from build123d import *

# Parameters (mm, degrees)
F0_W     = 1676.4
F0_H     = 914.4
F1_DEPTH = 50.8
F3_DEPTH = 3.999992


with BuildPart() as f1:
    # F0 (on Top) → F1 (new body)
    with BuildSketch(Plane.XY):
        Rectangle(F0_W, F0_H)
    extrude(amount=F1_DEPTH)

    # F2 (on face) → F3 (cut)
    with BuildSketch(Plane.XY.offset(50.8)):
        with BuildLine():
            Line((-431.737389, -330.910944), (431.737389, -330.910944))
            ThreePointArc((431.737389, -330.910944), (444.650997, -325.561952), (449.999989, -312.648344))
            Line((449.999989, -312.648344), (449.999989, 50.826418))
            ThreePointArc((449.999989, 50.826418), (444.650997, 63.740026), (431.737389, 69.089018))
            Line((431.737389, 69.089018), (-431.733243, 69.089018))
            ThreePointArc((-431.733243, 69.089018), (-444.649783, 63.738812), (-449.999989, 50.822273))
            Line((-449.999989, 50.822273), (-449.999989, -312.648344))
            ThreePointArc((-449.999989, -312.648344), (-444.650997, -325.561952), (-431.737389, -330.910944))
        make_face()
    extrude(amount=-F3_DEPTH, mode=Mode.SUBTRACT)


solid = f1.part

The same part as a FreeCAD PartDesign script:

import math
import FreeCAD as App
import Part
import Sketcher

V = App.Vector
Q = App.Units.Quantity


def add_polygon(sketch, points):
    """Adds a closed chain of lines whose ends are joined by coincident constraints."""
    first, n = sketch.GeometryCount, len(points)
    for a, b in zip(points, points[1:] + points[:1]):
        sketch.addGeometry(Part.LineSegment(App.Vector(*a, 0), App.Vector(*b, 0)), False)
    for i in range(n):
        sketch.addConstraint(Sketcher.Constraint("Coincident", first + i, 2, first + (i + 1) % n, 1))

doc = App.newDocument("Part")
params = doc.addObject("Spreadsheet::Sheet", "Params")
for row, (alias, value) in enumerate([
    ("sketch1_width", "66 in"),
    ("sketch1_height", "36 in"),
    ("pad1_length", "2 in"),
    ("sketch2_radius", "0.719 in"),
    ("pocket1_length", "3.999992 mm"),
], start=1):
    params.set(f"A{row}", alias)
    params.set(f"B{row}", "=" + value)
    params.setAlias(f"B{row}", alias)

body = doc.addObject("PartDesign::Body", "Body")

# Sketch on XY plane
sketch1 = body.newObject("Sketcher::SketchObject", "Sketch")
sketch1.AttachmentSupport = (doc.getObject("XY_Plane"), [""])
sketch1.MapMode = "FlatFace"
add_polygon(sketch1, [(-838, 457), (-838, -457), (838, -457), (838, 457)])  # lines 0-3
sketch1.addConstraint([
    Sketcher.Constraint("Vertical", 0),
    Sketcher.Constraint("Horizontal", 1),
    Sketcher.Constraint("Vertical", 2),
    Sketcher.Constraint("Horizontal", 3),
    Sketcher.Constraint("Symmetric", 0, 2, 2, 2, -1, 1),
    Sketcher.Constraint("DistanceX", 1, 1, 1, 2, Q("66 in")),
    Sketcher.Constraint("DistanceY", 0, 2, 0, 1, Q("36 in")),
])
sketch1.setExpression("Constraints[9]", "Params.sketch1_width")
sketch1.setExpression("Constraints[10]", "Params.sketch1_height")
pad1 = body.newObject("PartDesign::Pad", "Pad")
pad1.Profile = sketch1
pad1.setExpression("Length", "Params.pad1_length")

# Sketch on XY plane
sketch2 = body.newObject("Sketcher::SketchObject", "Sketch001")
sketch2.AttachmentSupport = (doc.getObject("XY_Plane"), [""])
sketch2.MapMode = "FlatFace"
sketch2.AttachmentOffset = App.Placement(V(0, 0, 2 * 25.4), App.Rotation())
sketch2.addGeometry([
    Part.LineSegment(V(-432, -331, 0), V(432, -331, 0)),  # 0
    Part.ArcOfCircle(Part.Circle(V(432, -313, 0), V(0, 0, 1), 18), math.radians(-90), math.radians(0)),  # 1
    Part.LineSegment(V(450, -313, 0), V(450, 51, 0)),  # 2
    Part.ArcOfCircle(Part.Circle(V(432, 51, 0), V(0, 0, 1), 18), math.radians(0), math.radians(90)),  # 3
    Part.LineSegment(V(432, 69, 0), V(-432, 69, 0)),  # 4
    Part.ArcOfCircle(Part.Circle(V(-432, 51, 0), V(0, 0, 1), 18), math.radians(90), math.radians(180)),  # 5
    Part.LineSegment(V(-450, 51, 0), V(-450, -313, 0)),  # 6
    Part.ArcOfCircle(Part.Circle(V(-432, -313, 0), V(0, 0, 1), 18), math.radians(-180), math.radians(-90)),  # 7
], False)
sketch2.addConstraint([
    Sketcher.Constraint("Tangent", 0, 2, 1, 1),
    Sketcher.Constraint("Tangent", 1, 2, 2, 1),
    Sketcher.Constraint("Tangent", 2, 2, 3, 1),
    Sketcher.Constraint("Tangent", 3, 2, 4, 1),
    Sketcher.Constraint("Tangent", 4, 2, 5, 1),
    Sketcher.Constraint("Tangent", 5, 2, 6, 1),
    Sketcher.Constraint("Tangent", 6, 2, 7, 1),
    Sketcher.Constraint("Tangent", 7, 2, 0, 1),
    Sketcher.Constraint("Horizontal", 0),
    Sketcher.Constraint("Vertical", 2),
    Sketcher.Constraint("Horizontal", 4),
    Sketcher.Constraint("Vertical", 6),
    Sketcher.Constraint("Equal", 1, 3),
    Sketcher.Constraint("Equal", 3, 7),
    Sketcher.Constraint("Radius", 1, Q("0.719 in")),
    Sketcher.Constraint("Radius", 5, Q("18.266746 mm")),
    Sketcher.Constraint("DistanceX", 0, 1, 0, 2, Q("863.474778 mm")),
    Sketcher.Constraint("DistanceY", 2, 1, 2, 2, Q("363.474762 mm")),
    Sketcher.Constraint("DistanceX", -1, 1, 0, 2, Q("431.737389 mm")),
    Sketcher.Constraint("DistanceY", 1, 3, -1, 1, Q("312.648343 mm")),
])
sketch2.setExpression("Constraints[14]", "Params.sketch2_radius")
pocket1 = body.newObject("PartDesign::Pocket", "Pocket")
pocket1.Profile = sketch2
pocket1.setExpression("Length", "Params.pocket1_length")

doc.recompute()
